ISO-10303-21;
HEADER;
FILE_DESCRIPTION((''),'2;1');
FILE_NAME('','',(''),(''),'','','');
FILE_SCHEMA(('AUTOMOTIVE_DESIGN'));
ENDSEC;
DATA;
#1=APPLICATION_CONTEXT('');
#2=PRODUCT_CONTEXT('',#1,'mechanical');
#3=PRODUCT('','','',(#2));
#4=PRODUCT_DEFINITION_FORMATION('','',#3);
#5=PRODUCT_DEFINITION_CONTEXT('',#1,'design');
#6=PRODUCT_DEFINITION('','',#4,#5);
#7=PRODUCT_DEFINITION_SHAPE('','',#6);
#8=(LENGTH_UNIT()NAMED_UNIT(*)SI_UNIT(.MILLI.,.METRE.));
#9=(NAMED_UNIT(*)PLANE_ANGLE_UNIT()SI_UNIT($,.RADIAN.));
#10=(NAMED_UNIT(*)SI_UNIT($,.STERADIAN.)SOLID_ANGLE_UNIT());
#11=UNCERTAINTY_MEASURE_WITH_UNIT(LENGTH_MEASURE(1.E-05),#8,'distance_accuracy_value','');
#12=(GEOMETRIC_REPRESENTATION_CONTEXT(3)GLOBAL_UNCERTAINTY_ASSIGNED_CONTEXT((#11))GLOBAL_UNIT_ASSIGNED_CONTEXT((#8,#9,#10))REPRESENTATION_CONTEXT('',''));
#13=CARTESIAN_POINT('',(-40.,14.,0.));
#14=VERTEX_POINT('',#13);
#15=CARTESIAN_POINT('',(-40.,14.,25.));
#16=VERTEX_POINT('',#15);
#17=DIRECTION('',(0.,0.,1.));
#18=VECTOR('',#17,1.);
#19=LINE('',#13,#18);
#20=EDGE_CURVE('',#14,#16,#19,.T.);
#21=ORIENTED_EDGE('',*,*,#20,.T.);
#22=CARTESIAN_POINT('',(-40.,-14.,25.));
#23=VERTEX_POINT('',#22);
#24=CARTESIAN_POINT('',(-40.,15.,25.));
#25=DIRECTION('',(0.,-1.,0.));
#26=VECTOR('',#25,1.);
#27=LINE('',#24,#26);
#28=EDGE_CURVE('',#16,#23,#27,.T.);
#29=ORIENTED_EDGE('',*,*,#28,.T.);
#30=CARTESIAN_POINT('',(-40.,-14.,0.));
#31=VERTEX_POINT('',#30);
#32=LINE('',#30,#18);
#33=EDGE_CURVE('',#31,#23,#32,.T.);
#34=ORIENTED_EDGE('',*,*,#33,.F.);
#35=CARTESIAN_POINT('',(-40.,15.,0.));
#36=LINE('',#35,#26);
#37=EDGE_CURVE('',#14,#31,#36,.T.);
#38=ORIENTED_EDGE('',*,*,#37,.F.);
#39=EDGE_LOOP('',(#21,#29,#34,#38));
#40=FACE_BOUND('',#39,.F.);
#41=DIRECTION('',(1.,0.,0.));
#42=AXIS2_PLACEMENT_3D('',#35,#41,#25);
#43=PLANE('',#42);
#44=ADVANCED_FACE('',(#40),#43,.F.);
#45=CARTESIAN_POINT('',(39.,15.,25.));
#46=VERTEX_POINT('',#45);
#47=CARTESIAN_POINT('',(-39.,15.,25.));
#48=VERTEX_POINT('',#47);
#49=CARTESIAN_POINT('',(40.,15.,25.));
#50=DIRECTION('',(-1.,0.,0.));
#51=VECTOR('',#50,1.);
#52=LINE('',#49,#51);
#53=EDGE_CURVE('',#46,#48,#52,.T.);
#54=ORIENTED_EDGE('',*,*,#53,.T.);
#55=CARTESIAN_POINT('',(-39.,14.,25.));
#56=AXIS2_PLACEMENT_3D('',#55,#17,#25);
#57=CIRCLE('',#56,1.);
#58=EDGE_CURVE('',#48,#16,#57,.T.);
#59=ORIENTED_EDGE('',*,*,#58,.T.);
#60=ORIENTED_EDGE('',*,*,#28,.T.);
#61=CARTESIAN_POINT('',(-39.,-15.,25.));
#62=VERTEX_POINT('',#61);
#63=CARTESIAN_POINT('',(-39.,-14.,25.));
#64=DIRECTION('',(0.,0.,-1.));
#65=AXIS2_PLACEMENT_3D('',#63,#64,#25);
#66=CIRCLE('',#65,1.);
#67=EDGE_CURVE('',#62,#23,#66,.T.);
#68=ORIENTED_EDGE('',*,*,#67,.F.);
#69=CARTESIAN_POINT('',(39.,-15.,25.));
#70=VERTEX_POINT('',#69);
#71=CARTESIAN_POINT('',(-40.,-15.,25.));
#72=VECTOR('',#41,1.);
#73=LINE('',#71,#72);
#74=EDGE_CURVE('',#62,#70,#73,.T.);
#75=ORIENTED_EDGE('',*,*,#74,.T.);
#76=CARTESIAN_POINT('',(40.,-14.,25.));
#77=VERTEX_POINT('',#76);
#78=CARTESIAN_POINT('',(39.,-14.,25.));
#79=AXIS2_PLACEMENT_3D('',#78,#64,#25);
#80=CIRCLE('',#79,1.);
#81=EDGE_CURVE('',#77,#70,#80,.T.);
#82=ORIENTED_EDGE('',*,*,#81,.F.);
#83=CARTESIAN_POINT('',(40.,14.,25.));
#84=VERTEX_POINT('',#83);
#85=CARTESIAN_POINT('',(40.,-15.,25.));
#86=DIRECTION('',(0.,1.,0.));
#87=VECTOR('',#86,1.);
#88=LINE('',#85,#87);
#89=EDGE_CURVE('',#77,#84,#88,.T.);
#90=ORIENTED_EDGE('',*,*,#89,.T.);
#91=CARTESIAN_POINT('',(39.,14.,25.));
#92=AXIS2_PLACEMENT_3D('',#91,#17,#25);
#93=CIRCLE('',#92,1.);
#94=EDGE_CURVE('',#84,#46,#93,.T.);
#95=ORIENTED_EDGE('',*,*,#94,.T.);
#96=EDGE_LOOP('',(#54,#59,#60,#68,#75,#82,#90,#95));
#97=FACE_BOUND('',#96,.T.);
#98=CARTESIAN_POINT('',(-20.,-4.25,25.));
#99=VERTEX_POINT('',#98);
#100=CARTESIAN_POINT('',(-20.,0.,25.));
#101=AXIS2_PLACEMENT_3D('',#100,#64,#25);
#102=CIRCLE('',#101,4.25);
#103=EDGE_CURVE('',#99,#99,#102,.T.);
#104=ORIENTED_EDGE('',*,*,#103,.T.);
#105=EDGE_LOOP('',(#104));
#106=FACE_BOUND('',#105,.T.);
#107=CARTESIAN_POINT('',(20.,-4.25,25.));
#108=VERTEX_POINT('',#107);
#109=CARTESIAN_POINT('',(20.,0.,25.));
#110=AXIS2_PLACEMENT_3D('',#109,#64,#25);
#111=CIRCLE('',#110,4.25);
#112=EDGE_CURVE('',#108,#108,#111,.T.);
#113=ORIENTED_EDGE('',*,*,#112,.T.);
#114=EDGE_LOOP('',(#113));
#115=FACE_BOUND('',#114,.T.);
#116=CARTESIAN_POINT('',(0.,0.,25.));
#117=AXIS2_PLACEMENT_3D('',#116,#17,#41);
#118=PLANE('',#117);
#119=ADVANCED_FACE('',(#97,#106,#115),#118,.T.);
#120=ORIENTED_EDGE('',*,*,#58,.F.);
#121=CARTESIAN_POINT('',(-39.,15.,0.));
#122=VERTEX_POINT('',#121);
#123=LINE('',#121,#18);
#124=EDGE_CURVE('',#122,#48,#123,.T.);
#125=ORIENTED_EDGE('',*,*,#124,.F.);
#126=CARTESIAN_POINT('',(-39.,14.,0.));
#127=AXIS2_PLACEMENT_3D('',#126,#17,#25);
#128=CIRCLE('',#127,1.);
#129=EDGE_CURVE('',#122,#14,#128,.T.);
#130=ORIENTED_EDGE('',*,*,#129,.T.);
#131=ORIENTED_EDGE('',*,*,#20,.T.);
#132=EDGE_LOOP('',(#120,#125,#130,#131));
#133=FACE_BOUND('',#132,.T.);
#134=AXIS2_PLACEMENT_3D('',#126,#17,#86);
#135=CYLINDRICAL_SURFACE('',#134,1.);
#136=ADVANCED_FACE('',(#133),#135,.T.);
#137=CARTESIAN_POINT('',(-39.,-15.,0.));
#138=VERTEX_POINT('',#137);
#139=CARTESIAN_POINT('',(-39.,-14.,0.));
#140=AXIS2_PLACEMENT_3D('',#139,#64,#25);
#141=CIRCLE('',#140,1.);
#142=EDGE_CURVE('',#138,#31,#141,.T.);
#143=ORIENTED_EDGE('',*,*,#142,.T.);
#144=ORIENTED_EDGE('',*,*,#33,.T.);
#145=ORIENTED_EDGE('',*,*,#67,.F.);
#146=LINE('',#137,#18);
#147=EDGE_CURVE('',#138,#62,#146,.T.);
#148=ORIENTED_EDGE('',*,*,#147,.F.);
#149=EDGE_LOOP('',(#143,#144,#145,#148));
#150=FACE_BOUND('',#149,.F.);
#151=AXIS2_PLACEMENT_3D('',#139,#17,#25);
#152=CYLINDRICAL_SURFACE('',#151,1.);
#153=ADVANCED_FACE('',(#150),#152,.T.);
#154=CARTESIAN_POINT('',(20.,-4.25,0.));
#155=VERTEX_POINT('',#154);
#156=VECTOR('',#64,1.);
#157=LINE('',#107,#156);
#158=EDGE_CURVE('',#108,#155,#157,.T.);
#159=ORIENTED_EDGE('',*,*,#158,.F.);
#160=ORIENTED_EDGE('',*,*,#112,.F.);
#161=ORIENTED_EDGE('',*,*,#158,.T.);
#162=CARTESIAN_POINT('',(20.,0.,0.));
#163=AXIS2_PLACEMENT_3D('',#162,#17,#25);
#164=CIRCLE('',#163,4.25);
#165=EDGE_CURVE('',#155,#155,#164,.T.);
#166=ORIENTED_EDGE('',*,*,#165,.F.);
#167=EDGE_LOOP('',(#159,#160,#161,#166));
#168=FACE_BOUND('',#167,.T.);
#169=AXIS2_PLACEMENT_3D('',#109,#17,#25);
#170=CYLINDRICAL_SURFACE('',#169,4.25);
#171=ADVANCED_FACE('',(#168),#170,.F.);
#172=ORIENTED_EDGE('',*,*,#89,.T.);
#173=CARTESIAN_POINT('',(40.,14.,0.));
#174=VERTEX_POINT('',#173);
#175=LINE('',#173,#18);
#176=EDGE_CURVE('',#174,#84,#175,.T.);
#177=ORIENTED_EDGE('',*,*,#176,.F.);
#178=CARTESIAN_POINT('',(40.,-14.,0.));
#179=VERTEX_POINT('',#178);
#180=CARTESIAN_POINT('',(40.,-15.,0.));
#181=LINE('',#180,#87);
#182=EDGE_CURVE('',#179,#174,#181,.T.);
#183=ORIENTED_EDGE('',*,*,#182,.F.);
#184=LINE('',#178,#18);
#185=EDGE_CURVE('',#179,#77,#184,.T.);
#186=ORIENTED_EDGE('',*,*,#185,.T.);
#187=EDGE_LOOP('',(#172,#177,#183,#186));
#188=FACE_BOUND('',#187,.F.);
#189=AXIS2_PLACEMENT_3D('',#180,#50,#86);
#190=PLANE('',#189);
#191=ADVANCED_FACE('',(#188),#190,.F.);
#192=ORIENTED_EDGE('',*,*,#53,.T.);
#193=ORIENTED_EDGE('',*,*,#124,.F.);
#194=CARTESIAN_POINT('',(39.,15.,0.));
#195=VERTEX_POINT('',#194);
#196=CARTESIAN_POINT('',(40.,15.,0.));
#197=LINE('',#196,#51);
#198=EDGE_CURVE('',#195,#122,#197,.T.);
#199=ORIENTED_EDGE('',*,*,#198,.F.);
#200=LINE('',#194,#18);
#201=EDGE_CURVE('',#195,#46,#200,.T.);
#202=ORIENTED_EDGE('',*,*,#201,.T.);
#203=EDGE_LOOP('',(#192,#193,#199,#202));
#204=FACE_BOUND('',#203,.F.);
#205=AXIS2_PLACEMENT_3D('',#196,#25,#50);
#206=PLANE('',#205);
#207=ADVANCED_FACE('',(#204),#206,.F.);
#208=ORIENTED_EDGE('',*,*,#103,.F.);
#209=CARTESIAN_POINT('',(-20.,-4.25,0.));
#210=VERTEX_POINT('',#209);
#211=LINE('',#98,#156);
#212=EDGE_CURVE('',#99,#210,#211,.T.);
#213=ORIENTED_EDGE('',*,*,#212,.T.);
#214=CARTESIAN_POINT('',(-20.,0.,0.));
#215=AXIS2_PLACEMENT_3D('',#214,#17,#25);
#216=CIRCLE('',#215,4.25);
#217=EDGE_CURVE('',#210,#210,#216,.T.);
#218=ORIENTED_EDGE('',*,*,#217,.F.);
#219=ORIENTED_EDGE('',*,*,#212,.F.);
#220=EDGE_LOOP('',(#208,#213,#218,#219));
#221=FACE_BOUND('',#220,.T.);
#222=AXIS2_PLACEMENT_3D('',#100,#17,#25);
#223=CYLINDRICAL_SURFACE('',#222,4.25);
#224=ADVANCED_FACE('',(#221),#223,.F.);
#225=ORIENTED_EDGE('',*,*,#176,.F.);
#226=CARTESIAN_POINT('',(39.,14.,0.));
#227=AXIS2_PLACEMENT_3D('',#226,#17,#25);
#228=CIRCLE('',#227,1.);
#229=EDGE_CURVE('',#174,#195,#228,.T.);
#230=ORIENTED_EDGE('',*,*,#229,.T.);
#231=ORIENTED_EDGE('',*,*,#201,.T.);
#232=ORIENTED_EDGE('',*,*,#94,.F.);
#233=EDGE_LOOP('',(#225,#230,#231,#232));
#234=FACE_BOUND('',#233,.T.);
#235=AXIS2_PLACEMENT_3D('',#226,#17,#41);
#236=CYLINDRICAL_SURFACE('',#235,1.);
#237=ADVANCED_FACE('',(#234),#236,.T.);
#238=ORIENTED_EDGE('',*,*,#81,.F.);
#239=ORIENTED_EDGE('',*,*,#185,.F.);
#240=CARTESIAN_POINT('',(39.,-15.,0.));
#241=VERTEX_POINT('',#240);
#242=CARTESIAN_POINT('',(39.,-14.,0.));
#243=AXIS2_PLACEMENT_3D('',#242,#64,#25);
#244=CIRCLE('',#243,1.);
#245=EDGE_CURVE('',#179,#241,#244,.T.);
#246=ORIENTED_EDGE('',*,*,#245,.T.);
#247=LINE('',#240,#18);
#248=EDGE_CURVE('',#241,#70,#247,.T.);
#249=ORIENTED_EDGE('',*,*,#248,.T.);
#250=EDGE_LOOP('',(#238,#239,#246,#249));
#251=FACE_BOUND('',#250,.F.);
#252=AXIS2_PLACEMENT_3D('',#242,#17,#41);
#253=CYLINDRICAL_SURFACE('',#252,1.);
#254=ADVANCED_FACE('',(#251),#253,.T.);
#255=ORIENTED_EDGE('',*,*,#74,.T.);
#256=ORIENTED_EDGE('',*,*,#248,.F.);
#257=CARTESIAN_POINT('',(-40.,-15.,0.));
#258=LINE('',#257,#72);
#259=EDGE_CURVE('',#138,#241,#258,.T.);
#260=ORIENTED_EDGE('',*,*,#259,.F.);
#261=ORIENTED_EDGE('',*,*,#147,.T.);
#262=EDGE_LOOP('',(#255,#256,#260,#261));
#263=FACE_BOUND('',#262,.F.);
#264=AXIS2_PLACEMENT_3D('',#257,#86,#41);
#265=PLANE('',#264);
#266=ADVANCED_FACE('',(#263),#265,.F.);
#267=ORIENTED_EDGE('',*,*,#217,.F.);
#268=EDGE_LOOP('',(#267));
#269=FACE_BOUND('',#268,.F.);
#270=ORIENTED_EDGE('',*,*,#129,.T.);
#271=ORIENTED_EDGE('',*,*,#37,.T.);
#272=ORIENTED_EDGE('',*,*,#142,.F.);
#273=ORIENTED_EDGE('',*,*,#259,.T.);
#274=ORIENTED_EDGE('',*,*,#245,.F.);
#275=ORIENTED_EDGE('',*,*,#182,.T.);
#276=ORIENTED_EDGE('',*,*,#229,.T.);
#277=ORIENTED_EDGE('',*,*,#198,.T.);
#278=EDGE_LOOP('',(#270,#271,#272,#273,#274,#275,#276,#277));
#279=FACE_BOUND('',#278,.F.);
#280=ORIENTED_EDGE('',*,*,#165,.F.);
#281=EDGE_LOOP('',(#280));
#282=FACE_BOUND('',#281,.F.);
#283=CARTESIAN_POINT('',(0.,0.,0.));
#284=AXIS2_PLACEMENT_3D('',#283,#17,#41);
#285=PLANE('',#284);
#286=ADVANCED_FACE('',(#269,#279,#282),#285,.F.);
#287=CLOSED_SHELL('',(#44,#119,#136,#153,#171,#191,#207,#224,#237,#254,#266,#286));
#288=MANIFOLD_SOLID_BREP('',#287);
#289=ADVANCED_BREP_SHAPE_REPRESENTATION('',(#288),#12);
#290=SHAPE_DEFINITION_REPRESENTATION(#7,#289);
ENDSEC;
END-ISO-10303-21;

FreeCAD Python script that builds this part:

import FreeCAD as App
import Part
import Sketcher
from FreeCAD import Vector


def edges_at(feature, points):
    """Names of the edges that pass closest to the given points."""
    edges = feature.Shape.Edges
    near = lambda p: min(range(len(edges)), key=lambda i: edges[i].distToShape(Part.Vertex(*p))[0])
    return sorted({f"Edge{near(p) + 1}" for p in points})

doc = App.newDocument("Part")
body = doc.addObject("PartDesign::Body", "Body")

sketch1 = body.newObject("Sketcher::SketchObject", "Sketch")
sketch1.AttachmentSupport = (doc.getObject("XY_Plane"), [""])
sketch1.MapMode = "FlatFace"
sketch1.addGeometry(Part.LineSegment(Vector(-40, -15, 0), Vector(40, -15, 0)), False)
sketch1.addGeometry(Part.LineSegment(Vector(40, -15, 0), Vector(40, 15, 0)), False)
sketch1.addGeometry(Part.LineSegment(Vector(40, 15, 0), Vector(-40, 15, 0)), False)
sketch1.addGeometry(Part.LineSegment(Vector(-40, 15, 0), Vector(-40, -15, 0)), False)
sketch1.addConstraint(Sketcher.Constraint("Coincident", 0, 2, 1, 1))
sketch1.addConstraint(Sketcher.Constraint("Coincident", 1, 2, 2, 1))
sketch1.addConstraint(Sketcher.Constraint("Coincident", 2, 2, 3, 1))
sketch1.addConstraint(Sketcher.Constraint("Coincident", 3, 2, 0, 1))
sketch1.addConstraint(Sketcher.Constraint("Horizontal", 0))
sketch1.addConstraint(Sketcher.Constraint("Vertical", 1))
sketch1.addConstraint(Sketcher.Constraint("Horizontal", 2))
sketch1.addConstraint(Sketcher.Constraint("Vertical", 3))
sketch1.addConstraint(Sketcher.Constraint("Symmetric", 0, 2, 2, 2, -1, 1))
sketch1.addConstraint(Sketcher.Constraint("DistanceX", 0, 1, 0, 2, 80.0))
sketch1.addConstraint(Sketcher.Constraint("DistanceY", 1, 1, 1, 2, 30.0))
pad1 = body.newObject("PartDesign::Pad", "Pad")
pad1.Profile = sketch1
pad1.Length = 25

sketch2 = body.newObject("Sketcher::SketchObject", "Sketch001")
sketch2.AttachmentSupport = (doc.getObject("XY_Plane"), [""])
sketch2.MapMode = "FlatFace"
sketch2.AttachmentOffset = App.Placement(Vector(0, 0, 25), App.Rotation())
sketch2.addGeometry(Part.Circle(Vector(-20, 0, 0), Vector(0, 0, 1), 4.2), False)
sketch2.addConstraint(Sketcher.Constraint("PointOnObject", 0, 3, -1))
sketch2.addConstraint(Sketcher.Constraint("Diameter", 0, 8.5))
sketch2.addConstraint(Sketcher.Constraint("DistanceX", 0, 3, -1, 1, 20.0))
doc.recompute()
hole = body.newObject("PartDesign::Hole", "Hole")
hole.Profile = sketch2
hole.ThreadType = "None"
hole.Diameter = 8.5
hole.DepthType = "ThroughAll"

sketch3 = body.newObject("Sketcher::SketchObject", "Sketch002")
sketch3.AttachmentSupport = (doc.getObject("XY_Plane"), [""])
sketch3.MapMode = "FlatFace"
sketch3.AttachmentOffset = App.Placement(Vector(0, 0, 25), App.Rotation())
sketch3.addGeometry(Part.Circle(Vector(20, 0, 0), Vector(0, 0, 1), 4.2), False)
sketch3.addConstraint(Sketcher.Constraint("PointOnObject", 0, 3, -1))
sketch3.addConstraint(Sketcher.Constraint("Diameter", 0, 8.5))
sketch3.addConstraint(Sketcher.Constraint("DistanceX", -1, 1, 0, 3, 20.0))
doc.recompute()
hole2 = body.newObject("PartDesign::Hole", "Hole001")
hole2.Profile = sketch3
hole2.ThreadType = "None"
hole2.Diameter = 8.5
hole2.DepthType = "ThroughAll"
doc.recompute()

fillet = body.newObject("PartDesign::Fillet", "Fillet")
fillet.Base = (hole2, edges_at(hole2, [
    (-40, 15, 12.5),
    (-40, -15, 12.5),
    (40, -15, 12.5),
    (40, 15, 12.5),
]))
fillet.Radius = 1

doc.recompute()
